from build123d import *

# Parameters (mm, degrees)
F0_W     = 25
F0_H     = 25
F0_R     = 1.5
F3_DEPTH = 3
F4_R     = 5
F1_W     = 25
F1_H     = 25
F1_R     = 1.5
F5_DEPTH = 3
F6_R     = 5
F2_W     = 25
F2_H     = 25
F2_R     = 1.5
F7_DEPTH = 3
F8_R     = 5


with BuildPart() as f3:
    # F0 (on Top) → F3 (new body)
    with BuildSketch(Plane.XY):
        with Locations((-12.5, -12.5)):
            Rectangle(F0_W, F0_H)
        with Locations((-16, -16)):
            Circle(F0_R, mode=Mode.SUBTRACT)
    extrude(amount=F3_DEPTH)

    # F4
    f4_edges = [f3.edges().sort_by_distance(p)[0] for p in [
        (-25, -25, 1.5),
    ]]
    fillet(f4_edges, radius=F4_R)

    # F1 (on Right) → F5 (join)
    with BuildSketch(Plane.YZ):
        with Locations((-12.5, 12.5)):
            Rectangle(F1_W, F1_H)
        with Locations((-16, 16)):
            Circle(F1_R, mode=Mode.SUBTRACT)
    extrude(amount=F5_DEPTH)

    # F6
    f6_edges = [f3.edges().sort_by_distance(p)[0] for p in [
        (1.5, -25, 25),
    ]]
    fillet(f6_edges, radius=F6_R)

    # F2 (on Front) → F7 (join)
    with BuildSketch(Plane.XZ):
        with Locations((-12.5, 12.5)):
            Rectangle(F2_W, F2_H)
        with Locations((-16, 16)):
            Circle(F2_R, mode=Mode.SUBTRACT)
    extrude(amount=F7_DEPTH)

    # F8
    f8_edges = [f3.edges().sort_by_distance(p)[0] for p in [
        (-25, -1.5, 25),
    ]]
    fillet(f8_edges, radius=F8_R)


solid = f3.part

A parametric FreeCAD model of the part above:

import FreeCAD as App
import Part
import Sketcher

V = App.Vector
Q = App.Units.Quantity


def edges_at(feature, points):
    """Names of the edges that pass closest to the given points."""
    edges = feature.Shape.Edges
    near = lambda p: min(range(len(edges)), key=lambda i: edges[i].distToShape(Part.Vertex(*p))[0])
    return sorted({f"Edge{near(p) + 1}" for p in points})


def add_polygon(sketch, points):
    """Adds a closed chain of lines whose ends are joined by coincident constraints."""
    first, n = sketch.GeometryCount, len(points)
    for a, b in zip(points, points[1:] + points[:1]):
        sketch.addGeometry(Part.LineSegment(App.Vector(*a, 0), App.Vector(*b, 0)), False)
    for i in range(n):
        sketch.addConstraint(Sketcher.Constraint("Coincident", first + i, 2, first + (i + 1) % n, 1))

doc = App.newDocument("Part")
body = doc.addObject("PartDesign::Body", "Body")

# Sketch on XY plane
sketch1 = body.newObject("Sketcher::SketchObject", "Sketch")
sketch1.AttachmentSupport = (doc.getObject("XY_Plane"), [""])
sketch1.MapMode = "FlatFace"
add_polygon(sketch1, [(-25, 0), (-25, -25), (0, -25), (0, 0)])  # lines 0-3
sketch1.addGeometry(Part.Circle(V(-16, -16, 0), V(0, 0, 1), 1.5), False)  # 4
sketch1.addConstraint([
    Sketcher.Constraint("Vertical", 0),
    Sketcher.Constraint("Horizontal", 1),
    Sketcher.Constraint("Vertical", 2),
    Sketcher.Constraint("Horizontal", 3),
    Sketcher.Constraint("Coincident", 2, 2, -1, 1),
    Sketcher.Constraint("Equal", 3, 0),
    Sketcher.Constraint("Diameter", 4, Q("3 mm")),
    Sketcher.Constraint("DistanceX", 1, 1, 1, 2, Q("25 mm")),
    Sketcher.Constraint("DistanceX", 4, 3, -1, 1, Q("16 mm")),
    Sketcher.Constraint("DistanceY", 4, 3, -1, 1, Q("16 mm")),
])
pad1 = body.newObject("PartDesign::Pad", "Pad")
pad1.Profile = sketch1
pad1.Length = 3
doc.recompute()

fillet = body.newObject("PartDesign::Fillet", "Fillet")
fillet.Base = (pad1, edges_at(pad1, [(-25, -25, 1.5)]))
fillet.Radius = 5

# Sketch on YZ plane
sketch2 = body.newObject("Sketcher::SketchObject", "Sketch001")
sketch2.AttachmentSupport = (doc.getObject("YZ_Plane"), [""])
sketch2.MapMode = "FlatFace"
add_polygon(sketch2, [(-25, 25), (-25, 0), (0, 0), (0, 25)])  # lines 0-3
sketch2.addGeometry(Part.Circle(V(-16, 16, 0), V(0, 0, 1), 1.5), False)  # 4
sketch2.addConstraint([
    Sketcher.Constraint("Vertical", 0),
    Sketcher.Constraint("Horizontal", 1),
    Sketcher.Constraint("Vertical", 2),
    Sketcher.Constraint("Horizontal", 3),
    Sketcher.Constraint("Coincident", 1, 2, -1, 1),
    Sketcher.Constraint("Equal", 3, 0),
    Sketcher.Constraint("Diameter", 4, Q("3 mm")),
    Sketcher.Constraint("DistanceX", 1, 1, 1, 2, Q("25 mm")),
    Sketcher.Constraint("DistanceX", 4, 3, -1, 1, Q("16 mm")),
    Sketcher.Constraint("DistanceY", -1, 1, 4, 3, Q("16 mm")),
])
pad2 = body.newObject("PartDesign::Pad", "Pad001")
pad2.Profile = sketch2
pad2.Length = 3
doc.recompute()

fillet2 = body.newObject("PartDesign::Fillet", "Fillet001")
fillet2.Base = (pad2, edges_at(pad2, [(1.5, -25, 25)]))
fillet2.Radius = 5

# Sketch on XZ plane
sketch3 = body.newObject("Sketcher::SketchObject", "Sketch002")
sketch3.AttachmentSupport = (doc.getObject("XZ_Plane"), [""])
sketch3.MapMode = "FlatFace"
add_polygon(sketch3, [(-25, 25), (-25, 0), (0, 0), (0, 25)])  # lines 0-3
sketch3.addGeometry(Part.Circle(V(-16, 16, 0), V(0, 0, 1), 1.5), False)  # 4
sketch3.addConstraint([
    Sketcher.Constraint("Vertical", 0),
    Sketcher.Constraint("Horizontal", 1),
    Sketcher.Constraint("Vertical", 2),
    Sketcher.Constraint("Horizontal", 3),
    Sketcher.Constraint("Coincident", 1, 2, -1, 1),
    Sketcher.Constraint("Equal", 3, 0),
    Sketcher.Constraint("Diameter", 4, Q("3 mm")),
    Sketcher.Constraint("DistanceX", 1, 1, 1, 2, Q("25 mm")),
    Sketcher.Constraint("DistanceX", 4, 3, -1, 1, Q("16 mm")),
    Sketcher.Constraint("DistanceY", -1, 1, 4, 3, Q("16 mm")),
])
pad3 = body.newObject("PartDesign::Pad", "Pad002")
pad3.Profile = sketch3
pad3.Length = 3
doc.recompute()

fillet3 = body.newObject("PartDesign::Fillet", "Fillet002")
fillet3.Base = (pad3, edges_at(pad3, [(-25, -1.5, 25)]))
fillet3.Radius = 5

doc.recompute()
